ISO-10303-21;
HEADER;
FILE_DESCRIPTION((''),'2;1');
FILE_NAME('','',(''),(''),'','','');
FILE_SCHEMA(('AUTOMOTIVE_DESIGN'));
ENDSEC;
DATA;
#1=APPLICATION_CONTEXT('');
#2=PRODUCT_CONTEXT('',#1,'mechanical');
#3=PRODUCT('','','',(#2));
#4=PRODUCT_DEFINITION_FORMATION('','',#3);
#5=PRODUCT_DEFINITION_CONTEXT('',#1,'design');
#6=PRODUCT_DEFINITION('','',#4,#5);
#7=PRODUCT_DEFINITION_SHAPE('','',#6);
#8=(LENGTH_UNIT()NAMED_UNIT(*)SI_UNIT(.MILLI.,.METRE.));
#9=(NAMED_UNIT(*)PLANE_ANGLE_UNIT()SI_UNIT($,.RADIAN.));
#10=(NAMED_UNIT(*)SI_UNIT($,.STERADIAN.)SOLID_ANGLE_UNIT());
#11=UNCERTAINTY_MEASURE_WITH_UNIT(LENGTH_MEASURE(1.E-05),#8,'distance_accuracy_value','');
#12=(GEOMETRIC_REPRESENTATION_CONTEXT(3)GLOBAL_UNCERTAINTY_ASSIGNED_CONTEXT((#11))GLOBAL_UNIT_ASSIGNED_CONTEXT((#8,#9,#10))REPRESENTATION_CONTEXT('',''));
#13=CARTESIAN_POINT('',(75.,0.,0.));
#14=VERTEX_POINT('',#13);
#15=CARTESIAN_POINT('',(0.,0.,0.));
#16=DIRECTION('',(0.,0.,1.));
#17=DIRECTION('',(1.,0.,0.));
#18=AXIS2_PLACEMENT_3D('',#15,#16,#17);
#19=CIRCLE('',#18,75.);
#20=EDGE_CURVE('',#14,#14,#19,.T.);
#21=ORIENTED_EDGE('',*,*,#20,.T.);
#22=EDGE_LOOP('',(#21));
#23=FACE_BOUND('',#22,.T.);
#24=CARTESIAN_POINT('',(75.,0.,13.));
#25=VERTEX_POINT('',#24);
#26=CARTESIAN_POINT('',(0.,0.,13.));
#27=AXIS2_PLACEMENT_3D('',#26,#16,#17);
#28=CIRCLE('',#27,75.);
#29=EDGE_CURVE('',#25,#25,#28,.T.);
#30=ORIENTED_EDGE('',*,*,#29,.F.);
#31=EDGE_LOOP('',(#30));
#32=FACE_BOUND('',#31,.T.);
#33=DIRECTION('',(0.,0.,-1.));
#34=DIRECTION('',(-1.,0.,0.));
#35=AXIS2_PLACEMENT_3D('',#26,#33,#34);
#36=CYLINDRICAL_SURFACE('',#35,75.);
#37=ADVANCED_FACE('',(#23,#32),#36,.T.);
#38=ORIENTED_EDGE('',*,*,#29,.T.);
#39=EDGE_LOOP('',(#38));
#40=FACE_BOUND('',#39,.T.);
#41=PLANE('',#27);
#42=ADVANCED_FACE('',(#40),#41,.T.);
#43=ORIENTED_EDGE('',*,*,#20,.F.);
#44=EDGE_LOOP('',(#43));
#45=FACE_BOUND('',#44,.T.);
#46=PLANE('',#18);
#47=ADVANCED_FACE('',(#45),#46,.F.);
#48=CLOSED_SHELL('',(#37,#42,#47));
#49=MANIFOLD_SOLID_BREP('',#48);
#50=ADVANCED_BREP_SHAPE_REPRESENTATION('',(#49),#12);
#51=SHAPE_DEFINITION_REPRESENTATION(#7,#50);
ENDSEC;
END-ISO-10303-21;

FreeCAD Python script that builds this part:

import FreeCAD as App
import Part
import Sketcher

V = App.Vector

doc = App.newDocument("Part")
body = doc.addObject("PartDesign::Body", "Body")

# Sketch on XY plane
sketch1 = body.newObject("Sketcher::SketchObject", "Sketch")
sketch1.AttachmentSupport = (doc.getObject("XY_Plane"), [""])
sketch1.MapMode = "FlatFace"
sketch1.addGeometry(Part.Circle(V(0, 0, 0), V(0, 0, 1), 75), False)
sketch1.addConstraint([
    Sketcher.Constraint("Coincident", 0, 3, -1, 1),
    Sketcher.Constraint("Diameter", 0, 150.0),
])
pad1 = body.newObject("PartDesign::Pad", "Pad")
pad1.Profile = sketch1
pad1.Length = 13

doc.recompute()
